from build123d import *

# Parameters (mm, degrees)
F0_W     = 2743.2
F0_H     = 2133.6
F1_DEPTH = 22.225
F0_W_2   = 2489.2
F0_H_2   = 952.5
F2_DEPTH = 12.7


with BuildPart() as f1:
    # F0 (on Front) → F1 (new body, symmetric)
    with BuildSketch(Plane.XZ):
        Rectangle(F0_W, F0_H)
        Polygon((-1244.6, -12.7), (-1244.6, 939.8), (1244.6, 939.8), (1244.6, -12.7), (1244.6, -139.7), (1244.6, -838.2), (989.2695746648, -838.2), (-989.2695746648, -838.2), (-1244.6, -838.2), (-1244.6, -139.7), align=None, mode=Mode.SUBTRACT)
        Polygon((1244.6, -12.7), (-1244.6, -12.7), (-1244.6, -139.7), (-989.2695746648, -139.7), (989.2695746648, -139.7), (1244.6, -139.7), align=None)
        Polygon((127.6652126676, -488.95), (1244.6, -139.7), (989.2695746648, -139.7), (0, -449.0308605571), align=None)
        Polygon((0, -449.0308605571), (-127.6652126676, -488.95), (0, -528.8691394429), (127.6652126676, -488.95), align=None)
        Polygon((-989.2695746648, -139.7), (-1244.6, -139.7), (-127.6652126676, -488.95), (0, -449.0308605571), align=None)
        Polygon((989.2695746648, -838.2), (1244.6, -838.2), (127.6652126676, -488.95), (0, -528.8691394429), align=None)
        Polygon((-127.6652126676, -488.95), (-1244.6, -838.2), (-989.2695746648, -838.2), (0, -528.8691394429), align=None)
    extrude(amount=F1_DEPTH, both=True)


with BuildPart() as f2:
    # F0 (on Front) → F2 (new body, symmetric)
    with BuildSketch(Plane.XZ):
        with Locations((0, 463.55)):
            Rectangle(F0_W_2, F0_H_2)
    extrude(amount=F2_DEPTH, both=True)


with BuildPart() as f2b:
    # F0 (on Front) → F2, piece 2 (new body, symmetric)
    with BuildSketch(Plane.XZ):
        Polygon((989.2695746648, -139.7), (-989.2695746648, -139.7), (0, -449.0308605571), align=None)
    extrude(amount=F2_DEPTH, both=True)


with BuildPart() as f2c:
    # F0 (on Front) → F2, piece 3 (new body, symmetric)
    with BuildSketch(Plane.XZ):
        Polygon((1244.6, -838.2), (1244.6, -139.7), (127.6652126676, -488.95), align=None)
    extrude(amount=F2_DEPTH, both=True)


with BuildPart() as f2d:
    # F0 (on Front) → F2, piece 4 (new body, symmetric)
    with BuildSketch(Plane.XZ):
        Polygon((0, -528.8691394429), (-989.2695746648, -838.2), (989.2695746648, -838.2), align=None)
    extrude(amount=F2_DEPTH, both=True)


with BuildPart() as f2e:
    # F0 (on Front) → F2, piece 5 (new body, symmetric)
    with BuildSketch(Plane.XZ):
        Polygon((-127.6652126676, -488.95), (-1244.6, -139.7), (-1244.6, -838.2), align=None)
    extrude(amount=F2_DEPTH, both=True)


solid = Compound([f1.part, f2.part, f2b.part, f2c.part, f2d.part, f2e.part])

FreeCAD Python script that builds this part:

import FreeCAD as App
import Part
import Sketcher

V = App.Vector
Q = App.Units.Quantity

doc = App.newDocument("Part")
body = doc.addObject("PartDesign::Body", "Body")

# Sketch on XZ plane
sketch1 = body.newObject("Sketcher::SketchObject", "Sketch")
sketch1.AttachmentSupport = (doc.getObject("XZ_Plane"), [""])
sketch1.MapMode = "FlatFace"
sketch1.addGeometry([
    Part.LineSegment(V(-1372, 1067, 0), V(-1372, -1067, 0)),  # 0
    Part.LineSegment(V(-1372, -1067, 0), V(1372, -1067, 0)),  # 1
    Part.LineSegment(V(1372, -1067, 0), V(1372, 1067, 0)),  # 2
    Part.LineSegment(V(1372, 1067, 0), V(-1372, 1067, 0)),  # 3
    Part.LineSegment(V(-1245, -838, 0), V(-1245, -140, 0)),  # 4
    Part.LineSegment(V(-1245, -140, 0), V(-128, -489, 0)),  # 5
    Part.LineSegment(V(-128, -489, 0), V(-1245, -838, 0)),  # 6
    Part.LineSegment(V(0, -529, 0), V(989, -838, 0)),  # 7
    Part.LineSegment(V(989, -838, 0), V(-989, -838, 0)),  # 8
    Part.LineSegment(V(-989, -838, 0), V(0, -529, 0)),  # 9
    Part.LineSegment(V(128, -489, 0), V(1245, -140, 0)),  # 10
    Part.LineSegment(V(1245, -140, 0), V(1245, -838, 0)),  # 11
    Part.LineSegment(V(1245, -838, 0), V(128, -489, 0)),  # 12
    Part.LineSegment(V(-989, -140, 0), V(989, -140, 0)),  # 13
    Part.LineSegment(V(989, -140, 0), V(0, -449, 0)),  # 14
    Part.LineSegment(V(0, -449, 0), V(-989, -140, 0)),  # 15
    Part.LineSegment(V(-1245, -13, 0), V(-1245, 940, 0)),  # 16
    Part.LineSegment(V(-1245, 940, 0), V(1245, 940, 0)),  # 17
    Part.LineSegment(V(1245, 940, 0), V(1245, -13, 0)),  # 18
    Part.LineSegment(V(1245, -13, 0), V(-1245, -13, 0)),  # 19
], False)
sketch1.addConstraint([
    Sketcher.Constraint("Coincident", 0, 2, 1, 1),
    Sketcher.Constraint("Coincident", 1, 2, 2, 1),
    Sketcher.Constraint("Coincident", 2, 2, 3, 1),
    Sketcher.Constraint("Coincident", 3, 2, 0, 1),
    Sketcher.Constraint("Coincident", 4, 2, 5, 1),
    Sketcher.Constraint("Coincident", 5, 2, 6, 1),
    Sketcher.Constraint("Coincident", 6, 2, 4, 1),
    Sketcher.Constraint("Coincident", 7, 2, 8, 1),
    Sketcher.Constraint("Coincident", 8, 2, 9, 1),
    Sketcher.Constraint("Coincident", 9, 2, 7, 1),
    Sketcher.Constraint("Coincident", 10, 2, 11, 1),
    Sketcher.Constraint("Coincident", 11, 2, 12, 1),
    Sketcher.Constraint("Coincident", 12, 2, 10, 1),
    Sketcher.Constraint("Coincident", 13, 2, 14, 1),
    Sketcher.Constraint("Coincident", 14, 2, 15, 1),
    Sketcher.Constraint("Coincident", 15, 2, 13, 1),
    Sketcher.Constraint("Coincident", 16, 2, 17, 1),
    Sketcher.Constraint("Coincident", 17, 2, 18, 1),
    Sketcher.Constraint("Coincident", 18, 2, 19, 1),
    Sketcher.Constraint("Coincident", 19, 2, 16, 1),
    Sketcher.Constraint("Vertical", 0),
    Sketcher.Constraint("Horizontal", 1),
    Sketcher.Constraint("Vertical", 2),
    Sketcher.Constraint("Horizontal", 3),
    Sketcher.Constraint("Vertical", 4),
    Sketcher.Constraint("Horizontal", 8),
    Sketcher.Constraint("Vertical", 11),
    Sketcher.Constraint("Horizontal", 13),
    Sketcher.Constraint("Vertical", 16),
    Sketcher.Constraint("Horizontal", 17),
    Sketcher.Constraint("Vertical", 18),
    Sketcher.Constraint("Horizontal", 19),
    Sketcher.Constraint("Symmetric", 0, 2, 2, 2, -1, 1),
    Sketcher.Constraint("Symmetric", 4, 2, 10, 2, -2),
    Sketcher.Constraint("Symmetric", 5, 2, 12, 2, -2),
    Sketcher.Constraint("PointOnObject", 9, 2, -2),
    Sketcher.Constraint("PointOnObject", 14, 2, -2),
    Sketcher.Constraint("Parallel", 5, 7),
    Sketcher.Constraint("Parallel", 6, 9),
    Sketcher.Constraint("Parallel", 9, 10),
    Sketcher.Constraint("Parallel", 7, 12),
    Sketcher.Constraint("Parallel", 10, 14),
    Sketcher.Constraint("Parallel", 12, 15),
    Sketcher.Constraint("Horizontal", 6, 2, 7, 2),
    Sketcher.Constraint("Horizontal", 10, 2, 13, 2),
    Sketcher.Constraint("Vertical", 7, 2, 13, 2),
    Sketcher.Constraint("Vertical", 6, 2, 16, 2),
    Sketcher.Constraint("Vertical", 11, 2, 17, 2),
    Sketcher.Constraint("DistanceX", 1, 1, 1, 2, Q("108 in")),
    Sketcher.Constraint("DistanceX", 17, 1, 17, 2, Q("98 in")),
    Sketcher.Constraint("DistanceY", 0, 2, 0, 1, Q("84 in")),
    Sketcher.Constraint("DistanceY", 4, 1, 4, 2, Q("27.5 in")),
    Sketcher.Constraint("DistanceY", 16, 1, 16, 2, Q("37.5 in")),
    Sketcher.Constraint("DistanceY", 6, 2, -1, 1, Q("33 in")),
    Sketcher.Constraint("DistanceY", -1, 1, 16, 2, Q("37 in")),
    Sketcher.Constraint("DistanceX", 8, 2, 8, 1, Q("1978.539149 mm")),
    Sketcher.Constraint("Distance", 5, Q("1170.264449 mm")),
])
pad1 = body.newObject("PartDesign::Pad", "Pad")
pad1.Profile = sketch1
pad1.Length = Q("1.75 in")
pad1.Midplane = True
body2 = doc.addObject("PartDesign::Body", "Body001")

# Sketch on XZ plane
sketch2 = body2.newObject("Sketcher::SketchObject", "Sketch001")
sketch2.AttachmentSupport = (doc.getObject("XZ_Plane001"), [""])
sketch2.MapMode = "FlatFace"
sketch2.addGeometry([
    Part.LineSegment(V(-1245, 940, 0), V(-1245, -13, 0)),
    Part.LineSegment(V(-1245, -13, 0), V(1245, -13, 0)),
    Part.LineSegment(V(1245, -13, 0), V(1245, 940, 0)),
    Part.LineSegment(V(1245, 940, 0), V(-1245, 940, 0)),
], False)
sketch2.addConstraint([
    Sketcher.Constraint("Coincident", 0, 2, 1, 1),
    Sketcher.Constraint("Coincident", 1, 2, 2, 1),
    Sketcher.Constraint("Coincident", 2, 2, 3, 1),
    Sketcher.Constraint("Coincident", 3, 2, 0, 1),
    Sketcher.Constraint("Vertical", 0),
    Sketcher.Constraint("Horizontal", 1),
    Sketcher.Constraint("Vertical", 2),
    Sketcher.Constraint("Horizontal", 3),
    Sketcher.Constraint("DistanceX", 1, 1, 1, 2, Q("98 in")),
    Sketcher.Constraint("DistanceY", 0, 2, 0, 1, Q("37.5 in")),
    Sketcher.Constraint("DistanceX", 0, 2, -1, 1, Q("49 in")),
    Sketcher.Constraint("DistanceY", -1, 1, 2, 2, Q("37 in")),
])
pad2 = body2.newObject("PartDesign::Pad", "Pad001")
pad2.Profile = sketch2
pad2.Length = Q("1 in")
pad2.Midplane = True
body3 = doc.addObject("PartDesign::Body", "Body002")

# Sketch on XZ plane
sketch3 = body3.newObject("Sketcher::SketchObject", "Sketch002")
sketch3.AttachmentSupport = (doc.getObject("XZ_Plane002"), [""])
sketch3.MapMode = "FlatFace"
sketch3.addGeometry([
    Part.LineSegment(V(989, -140, 0), V(-989, -140, 0)),
    Part.LineSegment(V(-989, -140, 0), V(0, -449, 0)),
    Part.LineSegment(V(0, -449, 0), V(989, -140, 0)),
], False)
sketch3.addConstraint([
    Sketcher.Constraint("Coincident", 0, 2, 1, 1),
    Sketcher.Constraint("Coincident", 1, 2, 2, 1),
    Sketcher.Constraint("Coincident", 2, 2, 0, 1),
    Sketcher.Constraint("Horizontal", 0),
    Sketcher.Constraint("PointOnObject", 1, 2, -2),
    Sketcher.Constraint("Equal", 1, 2),
    Sketcher.Constraint("DistanceY", 0, 2, -1, 1, Q("5.5 in")),
    Sketcher.Constraint("DistanceX", 0, 2, 0, 1, Q("1978.539149 mm")),
    Sketcher.Constraint("DistanceY", 1, 2, -1, 1, Q("449.030861 mm")),
])
pad3 = body3.newObject("PartDesign::Pad", "Pad002")
pad3.Profile = sketch3
pad3.Length = Q("1 in")
pad3.Midplane = True
body4 = doc.addObject("PartDesign::Body", "Body003")

# Sketch on XZ plane
sketch4 = body4.newObject("Sketcher::SketchObject", "Sketch003")
sketch4.AttachmentSupport = (doc.getObject("XZ_Plane003"), [""])
sketch4.MapMode = "FlatFace"
sketch4.addGeometry([
    Part.LineSegment(V(1245, -838, 0), V(1245, -140, 0)),
    Part.LineSegment(V(1245, -140, 0), V(128, -489, 0)),
    Part.LineSegment(V(128, -489, 0), V(1245, -838, 0)),
], False)
sketch4.addConstraint([
    Sketcher.Constraint("Coincident", 0, 2, 1, 1),
    Sketcher.Constraint("Coincident", 1, 2, 2, 1),
    Sketcher.Constraint("Coincident", 2, 2, 0, 1),
    Sketcher.Constraint("Vertical", 0),
    Sketcher.Constraint("Equal", 1, 2),
    Sketcher.Constraint("DistanceY", 0, 1, 0, 2, Q("27.5 in")),
    Sketcher.Constraint("DistanceX", -1, 1, 0, 2, Q("49 in")),
    Sketcher.Constraint("DistanceY", 2, 2, -1, 1, Q("33 in")),
    Sketcher.Constraint("Distance", 1, Q("1170.264449 mm")),
])
pad4 = body4.newObject("PartDesign::Pad", "Pad003")
pad4.Profile = sketch4
pad4.Length = Q("1 in")
pad4.Midplane = True
body5 = doc.addObject("PartDesign::Body", "Body004")

# Sketch on XZ plane
sketch5 = body5.newObject("Sketcher::SketchObject", "Sketch004")
sketch5.AttachmentSupport = (doc.getObject("XZ_Plane004"), [""])
sketch5.MapMode = "FlatFace"
sketch5.addGeometry([
    Part.LineSegment(V(0, -529, 0), V(-989, -838, 0)),
    Part.LineSegment(V(-989, -838, 0), V(989, -838, 0)),
    Part.LineSegment(V(989, -838, 0), V(0, -529, 0)),
], False)
sketch5.addConstraint([
    Sketcher.Constraint("Coincident", 0, 2, 1, 1),
    Sketcher.Constraint("Coincident", 1, 2, 2, 1),
    Sketcher.Constraint("Coincident", 2, 2, 0, 1),
    Sketcher.Constraint("Horizontal", 1),
    Sketcher.Constraint("PointOnObject", 2, 2, -2),
    Sketcher.Constraint("Equal", 0, 2),
    Sketcher.Constraint("DistanceY", 0, 2, -1, 1, Q("33 in")),
    Sketcher.Constraint("DistanceX", 1, 1, 1, 2, Q("1978.539149 mm")),
    Sketcher.Constraint("DistanceY", 2, 2, -1, 1, Q("528.869139 mm")),
])
pad5 = body5.newObject("PartDesign::Pad", "Pad004")
pad5.Profile = sketch5
pad5.Length = Q("1 in")
pad5.Midplane = True
body6 = doc.addObject("PartDesign::Body", "Body005")

# Sketch on XZ plane
sketch6 = body6.newObject("Sketcher::SketchObject", "Sketch005")
sketch6.AttachmentSupport = (doc.getObject("XZ_Plane005"), [""])
sketch6.MapMode = "FlatFace"
sketch6.addGeometry([
    Part.LineSegment(V(-128, -489, 0), V(-1245, -140, 0)),
    Part.LineSegment(V(-1245, -140, 0), V(-1245, -838, 0)),
    Part.LineSegment(V(-1245, -838, 0), V(-128, -489, 0)),
], False)
sketch6.addConstraint([
    Sketcher.Constraint("Coincident", 0, 2, 1, 1),
    Sketcher.Constraint("Coincident", 1, 2, 2, 1),
    Sketcher.Constraint("Coincident", 2, 2, 0, 1),
    Sketcher.Constraint("Vertical", 1),
    Sketcher.Constraint("Equal", 0, 2),
    Sketcher.Constraint("DistanceY", 1, 2, 1, 1, Q("27.5 in")),
    Sketcher.Constraint("DistanceX", 0, 2, -1, 1, Q("49 in")),
    Sketcher.Constraint("DistanceY", 1, 2, -1, 1, Q("33 in")),
    Sketcher.Constraint("Distance", 0, Q("1170.264449 mm")),
])
pad6 = body6.newObject("PartDesign::Pad", "Pad005")
pad6.Profile = sketch6
pad6.Length = Q("1 in")
pad6.Midplane = True

doc.recompute()
